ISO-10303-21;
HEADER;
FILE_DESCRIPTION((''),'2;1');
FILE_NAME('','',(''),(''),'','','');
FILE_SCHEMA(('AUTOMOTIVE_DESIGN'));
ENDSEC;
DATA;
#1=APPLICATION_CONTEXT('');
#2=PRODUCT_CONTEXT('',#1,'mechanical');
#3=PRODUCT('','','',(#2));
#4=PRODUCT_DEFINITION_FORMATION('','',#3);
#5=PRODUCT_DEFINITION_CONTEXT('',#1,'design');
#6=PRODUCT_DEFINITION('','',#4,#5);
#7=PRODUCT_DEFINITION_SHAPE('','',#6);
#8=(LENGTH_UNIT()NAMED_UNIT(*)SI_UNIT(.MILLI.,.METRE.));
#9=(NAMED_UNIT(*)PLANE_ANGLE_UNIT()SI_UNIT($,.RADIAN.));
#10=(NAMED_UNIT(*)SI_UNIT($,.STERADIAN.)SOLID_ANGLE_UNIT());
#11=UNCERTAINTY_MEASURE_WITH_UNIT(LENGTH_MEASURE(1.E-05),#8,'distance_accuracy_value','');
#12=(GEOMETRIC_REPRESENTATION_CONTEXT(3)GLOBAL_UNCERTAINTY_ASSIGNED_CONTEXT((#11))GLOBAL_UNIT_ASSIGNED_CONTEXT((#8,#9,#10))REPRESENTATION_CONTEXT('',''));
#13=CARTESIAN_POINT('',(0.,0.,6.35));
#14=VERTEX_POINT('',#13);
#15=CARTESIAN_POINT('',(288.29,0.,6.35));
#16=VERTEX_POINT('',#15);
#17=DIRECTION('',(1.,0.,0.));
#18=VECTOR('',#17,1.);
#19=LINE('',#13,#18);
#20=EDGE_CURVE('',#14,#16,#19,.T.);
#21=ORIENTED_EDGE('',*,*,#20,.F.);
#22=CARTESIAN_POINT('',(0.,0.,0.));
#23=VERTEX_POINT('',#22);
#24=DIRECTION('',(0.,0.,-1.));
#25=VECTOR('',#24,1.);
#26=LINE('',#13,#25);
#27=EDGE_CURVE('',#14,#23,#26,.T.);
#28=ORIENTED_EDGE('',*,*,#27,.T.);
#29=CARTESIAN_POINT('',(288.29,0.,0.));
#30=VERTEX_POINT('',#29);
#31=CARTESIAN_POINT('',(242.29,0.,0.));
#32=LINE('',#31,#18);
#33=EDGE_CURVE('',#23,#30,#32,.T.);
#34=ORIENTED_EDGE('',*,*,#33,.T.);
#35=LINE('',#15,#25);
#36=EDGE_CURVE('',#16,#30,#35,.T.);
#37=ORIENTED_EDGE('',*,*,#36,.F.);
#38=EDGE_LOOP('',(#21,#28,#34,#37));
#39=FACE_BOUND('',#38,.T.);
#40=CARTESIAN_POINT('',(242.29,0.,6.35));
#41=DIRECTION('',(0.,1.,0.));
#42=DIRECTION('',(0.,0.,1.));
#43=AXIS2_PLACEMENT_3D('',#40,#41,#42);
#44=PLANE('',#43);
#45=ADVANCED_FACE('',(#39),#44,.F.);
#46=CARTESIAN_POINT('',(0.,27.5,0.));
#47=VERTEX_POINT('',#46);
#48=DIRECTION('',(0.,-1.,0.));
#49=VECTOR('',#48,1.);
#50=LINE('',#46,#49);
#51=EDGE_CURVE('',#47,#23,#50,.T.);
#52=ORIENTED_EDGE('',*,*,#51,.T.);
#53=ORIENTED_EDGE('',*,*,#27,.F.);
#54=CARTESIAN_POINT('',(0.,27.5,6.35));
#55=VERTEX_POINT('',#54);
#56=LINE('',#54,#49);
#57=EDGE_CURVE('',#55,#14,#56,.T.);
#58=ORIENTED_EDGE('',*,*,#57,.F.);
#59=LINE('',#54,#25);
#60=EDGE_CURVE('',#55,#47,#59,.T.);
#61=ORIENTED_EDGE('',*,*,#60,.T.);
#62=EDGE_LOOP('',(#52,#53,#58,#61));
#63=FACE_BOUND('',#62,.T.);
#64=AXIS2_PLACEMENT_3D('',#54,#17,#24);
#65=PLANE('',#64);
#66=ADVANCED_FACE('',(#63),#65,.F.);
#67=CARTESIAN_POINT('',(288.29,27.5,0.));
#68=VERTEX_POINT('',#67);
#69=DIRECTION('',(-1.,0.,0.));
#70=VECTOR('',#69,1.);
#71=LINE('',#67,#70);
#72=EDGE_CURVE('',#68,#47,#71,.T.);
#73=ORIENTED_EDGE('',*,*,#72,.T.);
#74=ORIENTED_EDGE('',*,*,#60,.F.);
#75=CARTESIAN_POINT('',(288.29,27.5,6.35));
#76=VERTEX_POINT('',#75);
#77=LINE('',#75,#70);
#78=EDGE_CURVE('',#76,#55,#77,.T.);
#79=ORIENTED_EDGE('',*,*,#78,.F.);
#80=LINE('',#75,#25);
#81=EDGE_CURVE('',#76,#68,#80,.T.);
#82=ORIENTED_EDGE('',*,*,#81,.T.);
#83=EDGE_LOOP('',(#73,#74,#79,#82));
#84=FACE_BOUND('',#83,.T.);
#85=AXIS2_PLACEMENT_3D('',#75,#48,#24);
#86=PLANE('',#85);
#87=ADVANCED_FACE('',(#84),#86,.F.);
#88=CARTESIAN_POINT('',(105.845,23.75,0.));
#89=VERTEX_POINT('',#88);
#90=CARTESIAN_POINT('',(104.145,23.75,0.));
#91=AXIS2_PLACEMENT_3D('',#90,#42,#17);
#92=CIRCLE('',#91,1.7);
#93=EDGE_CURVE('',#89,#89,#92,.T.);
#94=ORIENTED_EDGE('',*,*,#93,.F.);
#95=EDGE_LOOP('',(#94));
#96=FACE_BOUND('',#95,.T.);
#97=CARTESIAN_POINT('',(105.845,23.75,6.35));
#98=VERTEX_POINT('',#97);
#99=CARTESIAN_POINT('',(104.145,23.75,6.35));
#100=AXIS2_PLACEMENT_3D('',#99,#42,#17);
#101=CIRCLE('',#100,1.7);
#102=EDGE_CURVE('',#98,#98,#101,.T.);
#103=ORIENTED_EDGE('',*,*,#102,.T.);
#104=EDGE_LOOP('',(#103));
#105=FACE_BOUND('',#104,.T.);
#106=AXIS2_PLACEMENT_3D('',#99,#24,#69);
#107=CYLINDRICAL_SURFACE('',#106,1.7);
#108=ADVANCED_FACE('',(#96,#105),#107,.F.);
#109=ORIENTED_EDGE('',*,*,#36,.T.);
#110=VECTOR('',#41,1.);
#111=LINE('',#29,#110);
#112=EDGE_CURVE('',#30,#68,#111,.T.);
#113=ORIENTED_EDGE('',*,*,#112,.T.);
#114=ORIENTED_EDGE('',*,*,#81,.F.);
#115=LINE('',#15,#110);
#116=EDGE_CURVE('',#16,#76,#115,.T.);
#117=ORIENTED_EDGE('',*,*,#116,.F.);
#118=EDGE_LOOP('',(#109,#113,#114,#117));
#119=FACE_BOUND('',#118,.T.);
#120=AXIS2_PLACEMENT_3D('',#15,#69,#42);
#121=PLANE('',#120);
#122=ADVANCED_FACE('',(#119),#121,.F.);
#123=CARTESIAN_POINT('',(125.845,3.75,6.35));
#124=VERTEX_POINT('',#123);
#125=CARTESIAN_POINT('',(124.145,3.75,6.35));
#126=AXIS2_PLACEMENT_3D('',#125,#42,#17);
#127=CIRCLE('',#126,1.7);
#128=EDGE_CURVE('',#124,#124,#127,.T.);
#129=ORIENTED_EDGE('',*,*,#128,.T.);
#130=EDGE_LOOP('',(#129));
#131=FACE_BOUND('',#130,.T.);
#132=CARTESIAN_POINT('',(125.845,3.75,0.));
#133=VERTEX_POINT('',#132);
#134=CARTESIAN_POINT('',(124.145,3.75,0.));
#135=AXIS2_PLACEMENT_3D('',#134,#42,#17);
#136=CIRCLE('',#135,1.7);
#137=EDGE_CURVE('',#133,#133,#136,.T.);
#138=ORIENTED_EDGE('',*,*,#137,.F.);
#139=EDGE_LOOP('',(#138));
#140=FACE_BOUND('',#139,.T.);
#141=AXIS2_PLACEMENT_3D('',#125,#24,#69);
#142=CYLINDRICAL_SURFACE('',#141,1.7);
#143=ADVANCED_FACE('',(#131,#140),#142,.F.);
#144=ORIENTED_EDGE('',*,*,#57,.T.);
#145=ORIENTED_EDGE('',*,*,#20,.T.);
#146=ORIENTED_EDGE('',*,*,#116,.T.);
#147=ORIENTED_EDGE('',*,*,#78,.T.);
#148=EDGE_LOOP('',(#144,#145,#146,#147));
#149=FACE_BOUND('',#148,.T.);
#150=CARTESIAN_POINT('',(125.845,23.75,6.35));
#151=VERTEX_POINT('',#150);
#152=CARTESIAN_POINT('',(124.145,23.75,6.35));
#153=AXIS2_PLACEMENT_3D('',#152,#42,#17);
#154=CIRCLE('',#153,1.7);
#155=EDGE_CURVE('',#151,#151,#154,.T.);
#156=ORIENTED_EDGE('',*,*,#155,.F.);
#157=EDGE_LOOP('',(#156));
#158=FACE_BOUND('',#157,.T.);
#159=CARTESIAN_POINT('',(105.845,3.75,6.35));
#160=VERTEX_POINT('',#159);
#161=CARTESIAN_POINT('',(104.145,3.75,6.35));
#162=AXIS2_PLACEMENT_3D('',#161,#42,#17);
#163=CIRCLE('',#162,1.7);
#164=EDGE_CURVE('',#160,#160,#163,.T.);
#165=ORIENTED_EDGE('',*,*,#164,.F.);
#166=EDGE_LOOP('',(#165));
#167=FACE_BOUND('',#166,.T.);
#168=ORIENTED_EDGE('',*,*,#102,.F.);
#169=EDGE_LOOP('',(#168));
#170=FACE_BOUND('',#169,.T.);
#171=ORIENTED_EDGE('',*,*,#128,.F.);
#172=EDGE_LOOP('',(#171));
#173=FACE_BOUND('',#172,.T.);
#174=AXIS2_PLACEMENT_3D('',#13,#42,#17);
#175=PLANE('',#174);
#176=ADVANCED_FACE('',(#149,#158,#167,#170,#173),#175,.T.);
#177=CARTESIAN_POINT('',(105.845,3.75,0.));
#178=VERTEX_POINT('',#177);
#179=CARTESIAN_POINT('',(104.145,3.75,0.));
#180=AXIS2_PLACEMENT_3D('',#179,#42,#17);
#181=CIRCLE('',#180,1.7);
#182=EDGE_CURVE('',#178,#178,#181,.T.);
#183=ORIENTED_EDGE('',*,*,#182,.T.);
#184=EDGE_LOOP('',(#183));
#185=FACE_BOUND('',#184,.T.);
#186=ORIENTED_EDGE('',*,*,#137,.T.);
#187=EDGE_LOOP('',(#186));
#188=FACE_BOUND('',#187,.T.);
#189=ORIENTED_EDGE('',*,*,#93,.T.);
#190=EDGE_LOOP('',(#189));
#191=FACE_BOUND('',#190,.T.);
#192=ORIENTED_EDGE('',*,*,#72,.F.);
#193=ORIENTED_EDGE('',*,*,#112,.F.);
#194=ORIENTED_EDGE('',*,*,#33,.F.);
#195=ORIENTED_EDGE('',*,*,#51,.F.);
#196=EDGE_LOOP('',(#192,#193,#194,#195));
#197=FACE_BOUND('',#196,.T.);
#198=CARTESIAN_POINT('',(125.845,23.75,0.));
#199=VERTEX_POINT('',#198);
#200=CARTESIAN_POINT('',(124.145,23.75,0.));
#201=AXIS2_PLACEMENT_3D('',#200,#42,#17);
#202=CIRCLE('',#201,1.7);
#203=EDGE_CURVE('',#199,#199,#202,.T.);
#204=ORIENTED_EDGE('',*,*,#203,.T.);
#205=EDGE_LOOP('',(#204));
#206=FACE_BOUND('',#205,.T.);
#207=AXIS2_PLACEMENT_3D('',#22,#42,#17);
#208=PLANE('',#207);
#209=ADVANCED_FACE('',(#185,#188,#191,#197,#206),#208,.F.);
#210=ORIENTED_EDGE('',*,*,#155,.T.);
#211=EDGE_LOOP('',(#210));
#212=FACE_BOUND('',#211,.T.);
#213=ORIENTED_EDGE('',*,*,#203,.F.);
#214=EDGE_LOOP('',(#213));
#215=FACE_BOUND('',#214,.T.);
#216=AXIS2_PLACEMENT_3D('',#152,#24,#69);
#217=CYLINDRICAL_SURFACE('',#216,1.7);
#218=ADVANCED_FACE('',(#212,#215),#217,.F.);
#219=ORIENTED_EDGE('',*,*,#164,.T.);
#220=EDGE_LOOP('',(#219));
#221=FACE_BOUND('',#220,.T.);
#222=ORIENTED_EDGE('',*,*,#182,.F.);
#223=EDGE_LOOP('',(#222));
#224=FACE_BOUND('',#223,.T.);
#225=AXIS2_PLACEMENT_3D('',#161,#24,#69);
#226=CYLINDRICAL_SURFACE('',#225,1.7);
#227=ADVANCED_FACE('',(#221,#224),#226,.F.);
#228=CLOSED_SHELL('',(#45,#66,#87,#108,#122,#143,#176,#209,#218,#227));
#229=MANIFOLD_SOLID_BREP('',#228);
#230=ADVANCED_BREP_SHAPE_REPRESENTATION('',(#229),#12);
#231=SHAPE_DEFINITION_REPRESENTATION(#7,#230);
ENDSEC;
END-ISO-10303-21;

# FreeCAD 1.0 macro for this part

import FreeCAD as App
import Part
import Sketcher
from FreeCAD import Vector
Q = App.Units.Quantity


def add_polygon(sketch, points):
    """Adds a closed chain of lines whose ends are joined by coincident constraints."""
    first, n = sketch.GeometryCount, len(points)
    for a, b in zip(points, points[1:] + points[:1]):
        sketch.addGeometry(Part.LineSegment(App.Vector(*a, 0), App.Vector(*b, 0)), False)
    for i in range(n):
        sketch.addConstraint(Sketcher.Constraint("Coincident", first + i, 2, first + (i + 1) % n, 1))

doc = App.newDocument("Part")
body = doc.addObject("PartDesign::Body", "Body")

# Sketch on XY plane
sketch1 = body.newObject("Sketcher::SketchObject", "Sketch")
sketch1.AttachmentSupport = (doc.getObject("XY_Plane"), [""])
sketch1.MapMode = "FlatFace"
add_polygon(sketch1, [(288.3, 0), (288.3, 27.5), (0, 27.5), (0, 0)])  # lines 0-3
sketch1.addGeometry(Part.Circle(Vector(104.1, 3.8, 0), Vector(0, 0, 1), 1.7), False)  # 4
sketch1.addGeometry(Part.Circle(Vector(124.1, 3.8, 0), Vector(0, 0, 1), 1.7), False)  # 5
sketch1.addGeometry(Part.Circle(Vector(104.1, 23.8, 0), Vector(0, 0, 1), 1.7), False)  # 6
sketch1.addGeometry(Part.Circle(Vector(124.1, 23.8, 0), Vector(0, 0, 1), 1.7), False)  # 7
sketch1.addConstraint([
    Sketcher.Constraint("Vertical", 0),
    Sketcher.Constraint("Horizontal", 1),
    Sketcher.Constraint("Vertical", 2),
    Sketcher.Constraint("Horizontal", 3),
    Sketcher.Constraint("Coincident", 2, 2, -1, 1),
    Sketcher.Constraint("Equal", 4, 5),
    Sketcher.Constraint("Equal", 5, 6),
    Sketcher.Constraint("Equal", 6, 7),
    Sketcher.Constraint("Horizontal", 4, 3, 5, 3),
    Sketcher.Constraint("Horizontal", 6, 3, 7, 3),
    Sketcher.Constraint("Vertical", 4, 3, 6, 3),
    Sketcher.Constraint("Vertical", 5, 3, 7, 3),
    Sketcher.Constraint("Diameter", 4, Q("3.4 mm")),
    Sketcher.Constraint("DistanceY", 0, 1, 0, 2, Q("27.5 mm")),
    Sketcher.Constraint("DistanceX", 4, 3, 5, 3, Q("20 mm")),
    Sketcher.Constraint("DistanceY", 4, 3, 6, 3, Q("20 mm")),
    Sketcher.Constraint("DistanceX", 1, 2, 1, 1, Q("288.29 mm")),
    Sketcher.Constraint("DistanceY", -1, 1, 4, 3, Q("3.75 mm")),
    Sketcher.Constraint("DistanceX", -1, 1, 4, 3, Q("104.145 mm")),
])
pad1 = body.newObject("PartDesign::Pad", "Pad")
pad1.Profile = sketch1
pad1.Length = 6.35

doc.recompute()
